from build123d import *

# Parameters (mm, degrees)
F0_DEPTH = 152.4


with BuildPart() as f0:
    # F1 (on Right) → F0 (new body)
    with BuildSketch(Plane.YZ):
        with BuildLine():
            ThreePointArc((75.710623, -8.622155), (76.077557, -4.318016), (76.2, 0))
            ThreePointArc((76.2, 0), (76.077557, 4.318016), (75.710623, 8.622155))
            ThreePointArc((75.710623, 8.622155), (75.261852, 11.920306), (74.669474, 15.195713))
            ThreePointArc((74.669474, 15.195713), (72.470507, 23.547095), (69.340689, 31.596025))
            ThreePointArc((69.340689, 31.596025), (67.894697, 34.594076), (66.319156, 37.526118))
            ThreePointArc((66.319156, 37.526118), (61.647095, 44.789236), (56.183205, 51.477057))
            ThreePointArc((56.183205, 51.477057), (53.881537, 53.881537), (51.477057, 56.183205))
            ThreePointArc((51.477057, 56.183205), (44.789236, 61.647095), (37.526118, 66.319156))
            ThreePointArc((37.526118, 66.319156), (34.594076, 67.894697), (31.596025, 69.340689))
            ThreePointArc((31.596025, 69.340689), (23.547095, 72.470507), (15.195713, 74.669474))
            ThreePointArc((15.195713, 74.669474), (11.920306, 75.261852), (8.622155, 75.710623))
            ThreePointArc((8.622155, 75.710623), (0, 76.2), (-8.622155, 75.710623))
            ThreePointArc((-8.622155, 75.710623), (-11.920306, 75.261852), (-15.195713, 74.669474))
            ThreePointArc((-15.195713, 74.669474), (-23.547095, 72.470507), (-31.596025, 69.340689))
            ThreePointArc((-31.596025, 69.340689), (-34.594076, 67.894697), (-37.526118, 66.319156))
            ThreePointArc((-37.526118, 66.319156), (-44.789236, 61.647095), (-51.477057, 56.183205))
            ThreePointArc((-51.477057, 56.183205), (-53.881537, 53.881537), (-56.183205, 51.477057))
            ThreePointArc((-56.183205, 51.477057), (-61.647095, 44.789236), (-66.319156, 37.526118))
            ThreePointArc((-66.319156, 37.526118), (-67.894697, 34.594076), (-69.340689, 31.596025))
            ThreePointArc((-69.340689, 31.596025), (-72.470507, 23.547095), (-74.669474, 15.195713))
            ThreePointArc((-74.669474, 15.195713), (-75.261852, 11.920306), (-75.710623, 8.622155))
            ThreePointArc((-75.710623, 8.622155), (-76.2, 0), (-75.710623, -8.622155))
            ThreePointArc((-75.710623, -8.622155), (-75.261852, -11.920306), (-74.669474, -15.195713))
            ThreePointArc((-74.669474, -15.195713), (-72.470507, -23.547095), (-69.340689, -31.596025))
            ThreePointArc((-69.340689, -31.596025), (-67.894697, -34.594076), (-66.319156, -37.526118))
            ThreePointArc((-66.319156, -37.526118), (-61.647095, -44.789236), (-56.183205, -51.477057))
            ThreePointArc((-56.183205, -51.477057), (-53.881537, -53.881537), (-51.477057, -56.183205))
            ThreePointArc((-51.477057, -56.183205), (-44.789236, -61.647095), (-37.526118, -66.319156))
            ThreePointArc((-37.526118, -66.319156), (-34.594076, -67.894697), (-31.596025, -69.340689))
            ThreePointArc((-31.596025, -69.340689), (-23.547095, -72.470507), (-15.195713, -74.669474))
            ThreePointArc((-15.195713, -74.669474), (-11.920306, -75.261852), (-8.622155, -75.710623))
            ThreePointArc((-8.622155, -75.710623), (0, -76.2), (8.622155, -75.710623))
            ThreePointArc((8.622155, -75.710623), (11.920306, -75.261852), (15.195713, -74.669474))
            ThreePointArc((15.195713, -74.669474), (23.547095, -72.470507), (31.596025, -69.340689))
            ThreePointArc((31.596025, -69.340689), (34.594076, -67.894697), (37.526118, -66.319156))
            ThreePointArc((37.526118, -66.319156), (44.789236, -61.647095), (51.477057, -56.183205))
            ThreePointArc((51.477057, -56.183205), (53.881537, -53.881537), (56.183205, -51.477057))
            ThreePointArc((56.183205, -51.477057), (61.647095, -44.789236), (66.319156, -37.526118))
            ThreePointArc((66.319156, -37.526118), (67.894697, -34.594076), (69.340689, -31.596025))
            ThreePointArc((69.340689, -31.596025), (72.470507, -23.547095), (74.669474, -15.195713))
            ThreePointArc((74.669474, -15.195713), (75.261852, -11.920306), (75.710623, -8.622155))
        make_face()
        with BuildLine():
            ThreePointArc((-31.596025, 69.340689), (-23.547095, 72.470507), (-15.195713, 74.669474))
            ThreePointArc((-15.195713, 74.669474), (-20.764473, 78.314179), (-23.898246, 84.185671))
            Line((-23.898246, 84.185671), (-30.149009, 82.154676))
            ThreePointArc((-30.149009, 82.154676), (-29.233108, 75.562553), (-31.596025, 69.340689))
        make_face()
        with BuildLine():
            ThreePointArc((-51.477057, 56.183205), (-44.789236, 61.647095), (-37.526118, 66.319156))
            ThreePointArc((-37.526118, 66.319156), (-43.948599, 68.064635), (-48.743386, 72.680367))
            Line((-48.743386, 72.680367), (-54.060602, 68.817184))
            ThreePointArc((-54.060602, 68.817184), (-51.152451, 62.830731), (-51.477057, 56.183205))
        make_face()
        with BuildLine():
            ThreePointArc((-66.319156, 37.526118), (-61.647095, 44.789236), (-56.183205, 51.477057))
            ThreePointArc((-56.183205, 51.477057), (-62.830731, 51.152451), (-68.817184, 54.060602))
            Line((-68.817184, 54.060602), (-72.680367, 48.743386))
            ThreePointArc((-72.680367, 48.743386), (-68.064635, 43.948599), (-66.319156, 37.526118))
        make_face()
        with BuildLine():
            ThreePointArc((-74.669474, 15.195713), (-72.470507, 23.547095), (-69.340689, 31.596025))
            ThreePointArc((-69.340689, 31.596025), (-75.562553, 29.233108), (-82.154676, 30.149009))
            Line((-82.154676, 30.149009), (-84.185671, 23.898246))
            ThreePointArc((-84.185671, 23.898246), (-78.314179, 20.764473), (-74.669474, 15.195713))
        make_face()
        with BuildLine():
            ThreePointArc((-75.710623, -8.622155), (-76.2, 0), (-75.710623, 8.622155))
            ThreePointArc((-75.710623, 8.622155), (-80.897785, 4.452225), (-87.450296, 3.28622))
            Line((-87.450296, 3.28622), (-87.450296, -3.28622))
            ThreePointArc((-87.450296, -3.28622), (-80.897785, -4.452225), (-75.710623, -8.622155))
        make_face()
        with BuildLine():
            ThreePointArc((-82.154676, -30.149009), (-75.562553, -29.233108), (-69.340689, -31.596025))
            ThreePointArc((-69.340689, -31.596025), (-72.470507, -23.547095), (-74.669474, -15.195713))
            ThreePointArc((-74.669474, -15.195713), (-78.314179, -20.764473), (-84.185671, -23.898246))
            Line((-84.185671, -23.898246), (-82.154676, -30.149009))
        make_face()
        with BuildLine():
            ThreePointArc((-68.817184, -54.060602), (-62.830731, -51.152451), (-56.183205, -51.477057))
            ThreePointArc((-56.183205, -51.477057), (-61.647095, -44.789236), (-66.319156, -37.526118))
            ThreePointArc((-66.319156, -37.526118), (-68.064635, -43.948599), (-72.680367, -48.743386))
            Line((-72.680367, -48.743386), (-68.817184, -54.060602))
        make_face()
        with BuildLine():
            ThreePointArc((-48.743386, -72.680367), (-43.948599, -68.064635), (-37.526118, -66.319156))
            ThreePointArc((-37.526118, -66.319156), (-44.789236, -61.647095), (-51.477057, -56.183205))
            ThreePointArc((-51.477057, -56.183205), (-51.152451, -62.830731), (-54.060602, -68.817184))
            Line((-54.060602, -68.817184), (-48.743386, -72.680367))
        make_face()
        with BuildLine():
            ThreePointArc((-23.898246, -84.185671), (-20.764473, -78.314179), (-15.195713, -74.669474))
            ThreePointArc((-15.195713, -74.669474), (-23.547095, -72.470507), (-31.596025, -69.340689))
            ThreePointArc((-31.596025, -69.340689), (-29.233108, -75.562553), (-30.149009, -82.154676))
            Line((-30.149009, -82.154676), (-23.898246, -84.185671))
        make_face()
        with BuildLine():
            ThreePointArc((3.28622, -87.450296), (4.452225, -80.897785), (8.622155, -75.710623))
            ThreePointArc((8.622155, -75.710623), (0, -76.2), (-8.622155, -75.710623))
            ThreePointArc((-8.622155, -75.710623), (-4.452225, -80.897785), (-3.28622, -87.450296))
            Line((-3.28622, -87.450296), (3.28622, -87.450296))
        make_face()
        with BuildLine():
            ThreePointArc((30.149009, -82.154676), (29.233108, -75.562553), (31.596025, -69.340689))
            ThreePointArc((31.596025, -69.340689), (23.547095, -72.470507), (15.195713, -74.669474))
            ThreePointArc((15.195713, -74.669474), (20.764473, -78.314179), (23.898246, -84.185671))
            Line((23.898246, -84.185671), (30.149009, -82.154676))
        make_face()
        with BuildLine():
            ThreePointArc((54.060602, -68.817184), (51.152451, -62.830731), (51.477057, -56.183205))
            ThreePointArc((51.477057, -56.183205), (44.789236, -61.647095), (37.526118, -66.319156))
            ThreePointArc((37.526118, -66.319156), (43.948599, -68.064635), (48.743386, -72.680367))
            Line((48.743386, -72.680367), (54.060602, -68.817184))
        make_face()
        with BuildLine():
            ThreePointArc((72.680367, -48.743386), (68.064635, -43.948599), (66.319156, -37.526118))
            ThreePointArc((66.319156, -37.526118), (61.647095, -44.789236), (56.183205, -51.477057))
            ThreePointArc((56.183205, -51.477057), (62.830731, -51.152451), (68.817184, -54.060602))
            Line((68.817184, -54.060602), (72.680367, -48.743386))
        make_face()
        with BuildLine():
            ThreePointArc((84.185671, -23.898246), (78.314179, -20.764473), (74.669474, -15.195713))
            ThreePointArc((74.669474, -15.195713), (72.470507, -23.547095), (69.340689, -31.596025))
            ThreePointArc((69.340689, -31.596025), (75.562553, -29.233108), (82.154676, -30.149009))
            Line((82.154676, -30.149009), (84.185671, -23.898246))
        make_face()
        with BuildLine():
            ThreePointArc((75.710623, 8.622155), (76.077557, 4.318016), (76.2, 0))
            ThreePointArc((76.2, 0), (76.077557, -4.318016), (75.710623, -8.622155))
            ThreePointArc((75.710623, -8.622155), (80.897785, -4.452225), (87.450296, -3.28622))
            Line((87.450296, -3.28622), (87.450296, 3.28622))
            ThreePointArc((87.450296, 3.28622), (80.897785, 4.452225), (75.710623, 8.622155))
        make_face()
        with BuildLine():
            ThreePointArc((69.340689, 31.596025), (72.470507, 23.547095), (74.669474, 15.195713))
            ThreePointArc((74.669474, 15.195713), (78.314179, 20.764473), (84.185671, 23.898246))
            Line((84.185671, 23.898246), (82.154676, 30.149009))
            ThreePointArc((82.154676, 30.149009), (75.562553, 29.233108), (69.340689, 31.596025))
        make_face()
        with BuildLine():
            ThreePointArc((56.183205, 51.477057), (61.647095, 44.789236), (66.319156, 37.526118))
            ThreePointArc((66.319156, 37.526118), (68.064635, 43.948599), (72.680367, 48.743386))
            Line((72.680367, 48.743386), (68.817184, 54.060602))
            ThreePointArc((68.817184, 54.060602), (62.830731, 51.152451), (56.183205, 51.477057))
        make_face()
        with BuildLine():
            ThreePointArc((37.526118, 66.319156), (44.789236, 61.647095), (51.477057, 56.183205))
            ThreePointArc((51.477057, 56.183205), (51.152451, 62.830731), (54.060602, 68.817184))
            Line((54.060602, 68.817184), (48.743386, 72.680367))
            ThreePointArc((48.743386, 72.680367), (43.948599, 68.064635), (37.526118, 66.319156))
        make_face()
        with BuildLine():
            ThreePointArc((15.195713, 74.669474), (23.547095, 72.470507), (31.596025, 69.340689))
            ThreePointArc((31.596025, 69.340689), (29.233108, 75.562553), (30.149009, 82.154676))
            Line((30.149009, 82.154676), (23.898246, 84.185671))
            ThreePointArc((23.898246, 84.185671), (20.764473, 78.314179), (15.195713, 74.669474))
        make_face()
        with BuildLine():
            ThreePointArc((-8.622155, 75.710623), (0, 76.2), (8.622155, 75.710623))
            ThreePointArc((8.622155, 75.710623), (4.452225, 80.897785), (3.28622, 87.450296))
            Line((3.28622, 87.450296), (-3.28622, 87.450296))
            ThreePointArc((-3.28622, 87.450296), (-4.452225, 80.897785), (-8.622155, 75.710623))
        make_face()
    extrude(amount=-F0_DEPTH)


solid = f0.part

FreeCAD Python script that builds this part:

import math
import FreeCAD as App
import Part
import Sketcher
Q = App.Units.Quantity

doc = App.newDocument("Part")
body = doc.addObject("PartDesign::Body", "Body")

sketch1 = doc.addObject("Sketcher::SketchObject", "Sketch")
body.addObject(sketch1)
sketch1.AttachmentSupport = (doc.YZ_Plane, [""])
sketch1.MapMode = "FlatFace"
sketch1.addGeometry([
    Part.ArcOfCircle(Part.Circle(App.Vector(0.000306, 0.000052, 0), App.Vector(0, 0, 1), 76.19969), math.radians(6.497013), math.radians(11.502982)),
    Part.ArcOfCircle(Part.Circle(App.Vector(87.373492, 10.858138, 0), App.Vector(0, 0, 1), 13.424106), math.radians(103.737258), math.radians(161.148384)),
    Part.LineSegment(App.Vector(84.185671, 23.898246, 0), App.Vector(82.154676, 30.149009, 0)),
    Part.ArcOfCircle(Part.Circle(App.Vector(77.068893, 42.572436, 0), App.Vector(0, 0, 1), 13.42411), math.radians(-125.148374), math.radians(-67.737259)),
    Part.ArcOfCircle(Part.Circle(App.Vector(0.000055, 0.000031, 0), App.Vector(0, 0, 1), 76.199936), math.radians(24.497021), math.radians(29.502974)),
    Part.ArcOfCircle(Part.Circle(App.Vector(79.741782, 37.326595, 0), App.Vector(0, 0, 1), 13.424109), math.radians(121.737262), math.radians(179.14838)),
    Part.LineSegment(App.Vector(72.680367, 48.743386, 0), App.Vector(68.817184, 54.060602, 0)),
    Part.ArcOfCircle(Part.Circle(App.Vector(60.141266, 64.304393, 0), App.Vector(0, 0, 1), 13.424113), math.radians(-107.148372), math.radians(-49.737269)),
    Part.ArcOfCircle(Part.Circle(App.Vector(0.000669, 0.000669, 0), App.Vector(0, 0, 1), 76.199055), math.radians(42.496995), math.radians(47.503005)),
    Part.ArcOfCircle(Part.Circle(App.Vector(64.304393, 60.141266, 0), App.Vector(0, 0, 1), 13.424113), math.radians(139.737269), math.radians(197.148372)),
    Part.LineSegment(App.Vector(54.060602, 68.817184, 0), App.Vector(48.743386, 72.680367, 0)),
    Part.ArcOfCircle(Part.Circle(App.Vector(37.326595, 79.741782, 0), App.Vector(0, 0, 1), 13.424109), math.radians(-89.14838), math.radians(-31.737262)),
    Part.ArcOfCircle(Part.Circle(App.Vector(0.000031, 0.000055, 0), App.Vector(0, 0, 1), 76.199936), math.radians(60.497026), math.radians(65.502979)),
    Part.ArcOfCircle(Part.Circle(App.Vector(42.572436, 77.068893, 0), App.Vector(0, 0, 1), 13.42411), math.radians(157.737259), math.radians(215.148374)),
    Part.LineSegment(App.Vector(30.149009, 82.154676, 0), App.Vector(23.898246, 84.185671, 0)),
    Part.ArcOfCircle(Part.Circle(App.Vector(10.858138, 87.373492, 0), App.Vector(0, 0, 1), 13.424106), math.radians(-71.148384), math.radians(-13.737258)),
    Part.ArcOfCircle(Part.Circle(App.Vector(0.000052, 0.000306, 0), App.Vector(0, 0, 1), 76.19969), math.radians(78.497018), math.radians(83.502987)),
    Part.ArcOfCircle(Part.Circle(App.Vector(16.673193, 86.452479, 0), App.Vector(0, 0, 1), 13.424108), math.radians(175.73726), math.radians(233.148384)),
    Part.LineSegment(App.Vector(3.28622, 87.450296, 0), App.Vector(-3.28622, 87.450296, 0)),
    Part.ArcOfCircle(Part.Circle(App.Vector(-16.673193, 86.452479, 0), App.Vector(0, 0, 1), 13.424108), math.radians(-53.148384), math.radians(4.26274)),
    Part.ArcOfCircle(Part.Circle(App.Vector(-0.000052, 0.000306, 0), App.Vector(0, 0, 1), 76.19969), math.radians(96.497013), math.radians(101.502982)),
    Part.ArcOfCircle(Part.Circle(App.Vector(-10.858138, 87.373492, 0), App.Vector(0, 0, 1), 13.424106), math.radians(-166.262742), math.radians(-108.851616)),
    Part.LineSegment(App.Vector(-23.898246, 84.185671, 0), App.Vector(-30.149009, 82.154676, 0)),
    Part.ArcOfCircle(Part.Circle(App.Vector(-42.572436, 77.068893, 0), App.Vector(0, 0, 1), 13.42411), math.radians(-35.148374), math.radians(22.262741)),
    Part.ArcOfCircle(Part.Circle(App.Vector(-0.000031, 0.000055, 0), App.Vector(0, 0, 1), 76.199936), math.radians(114.497021), math.radians(119.502974)),
    Part.ArcOfCircle(Part.Circle(App.Vector(-37.326595, 79.741782, 0), App.Vector(0, 0, 1), 13.424109), math.radians(-148.262738), math.radians(-90.85162)),
    Part.LineSegment(App.Vector(-48.743386, 72.680367, 0), App.Vector(-54.060602, 68.817184, 0)),
    Part.ArcOfCircle(Part.Circle(App.Vector(-64.304393, 60.141266, 0), App.Vector(0, 0, 1), 13.424113), math.radians(-17.148372), math.radians(40.262731)),
    Part.ArcOfCircle(Part.Circle(App.Vector(-0.000669, 0.000669, 0), App.Vector(0, 0, 1), 76.199055), math.radians(132.496995), math.radians(137.503005)),
    Part.ArcOfCircle(Part.Circle(App.Vector(-60.141266, 64.304393, 0), App.Vector(0, 0, 1), 13.424113), math.radians(-130.262731), math.radians(-72.851628)),
    Part.LineSegment(App.Vector(-68.817184, 54.060602, 0), App.Vector(-72.680367, 48.743386, 0)),
    Part.ArcOfCircle(Part.Circle(App.Vector(-79.741782, 37.326595, 0), App.Vector(0, 0, 1), 13.424109), math.radians(0.85162), math.radians(58.262738)),
    Part.ArcOfCircle(Part.Circle(App.Vector(-0.000055, 0.000031, 0), App.Vector(0, 0, 1), 76.199936), math.radians(150.497026), math.radians(155.502979)),
    Part.ArcOfCircle(Part.Circle(App.Vector(-77.068893, 42.572436, 0), App.Vector(0, 0, 1), 13.42411), math.radians(-112.262741), math.radians(-54.851626)),
    Part.LineSegment(App.Vector(-82.154676, 30.149009, 0), App.Vector(-84.185671, 23.898246, 0)),
    Part.ArcOfCircle(Part.Circle(App.Vector(-87.373492, 10.858138, 0), App.Vector(0, 0, 1), 13.424106), math.radians(18.851616), math.radians(76.262742)),
    Part.ArcOfCircle(Part.Circle(App.Vector(-0.000306, 0.000052, 0), App.Vector(0, 0, 1), 76.19969), math.radians(168.497018), math.radians(173.502987)),
    Part.ArcOfCircle(Part.Circle(App.Vector(-86.452479, 16.673193, 0), App.Vector(0, 0, 1), 13.424108), math.radians(-94.26274), math.radians(-36.851616)),
    Part.LineSegment(App.Vector(-87.450296, 3.28622, 0), App.Vector(-87.450296, -3.28622, 0)),
    Part.ArcOfCircle(Part.Circle(App.Vector(-86.452479, -16.673193, 0), App.Vector(0, 0, 1), 13.424108), math.radians(36.851616), math.radians(94.26274)),
    Part.ArcOfCircle(Part.Circle(App.Vector(-0.000306, -0.000052, 0), App.Vector(0, 0, 1), 76.19969), math.radians(-173.502987), math.radians(-168.497018)),
    Part.ArcOfCircle(Part.Circle(App.Vector(-87.373492, -10.858138, 0), App.Vector(0, 0, 1), 13.424106), math.radians(-76.262742), math.radians(-18.851616)),
    Part.LineSegment(App.Vector(-84.185671, -23.898246, 0), App.Vector(-82.154676, -30.149009, 0)),
    Part.ArcOfCircle(Part.Circle(App.Vector(-77.068893, -42.572436, 0), App.Vector(0, 0, 1), 13.42411), math.radians(54.851626), math.radians(112.262741)),
    Part.ArcOfCircle(Part.Circle(App.Vector(-0.000055, -0.000031, 0), App.Vector(0, 0, 1), 76.199936), math.radians(-155.502979), math.radians(-150.497026)),
    Part.ArcOfCircle(Part.Circle(App.Vector(-79.741782, -37.326595, 0), App.Vector(0, 0, 1), 13.424109), math.radians(-58.262738), math.radians(-0.85162)),
    Part.LineSegment(App.Vector(-72.680367, -48.743386, 0), App.Vector(-68.817184, -54.060602, 0)),
    Part.ArcOfCircle(Part.Circle(App.Vector(-60.141266, -64.304393, 0), App.Vector(0, 0, 1), 13.424113), math.radians(72.851628), math.radians(130.262731)),
    Part.ArcOfCircle(Part.Circle(App.Vector(-0.000669, -0.000669, 0), App.Vector(0, 0, 1), 76.199055), math.radians(-137.503005), math.radians(-132.496995)),
    Part.ArcOfCircle(Part.Circle(App.Vector(-64.304393, -60.141266, 0), App.Vector(0, 0, 1), 13.424113), math.radians(-40.262731), math.radians(17.148372)),
    Part.LineSegment(App.Vector(-54.060602, -68.817184, 0), App.Vector(-48.743386, -72.680367, 0)),
    Part.ArcOfCircle(Part.Circle(App.Vector(-37.326595, -79.741782, 0), App.Vector(0, 0, 1), 13.424109), math.radians(90.85162), math.radians(148.262738)),
    Part.ArcOfCircle(Part.Circle(App.Vector(-0.000031, -0.000055, 0), App.Vector(0, 0, 1), 76.199936), math.radians(-119.502974), math.radians(-114.497021)),
    Part.ArcOfCircle(Part.Circle(App.Vector(-42.572436, -77.068893, 0), App.Vector(0, 0, 1), 13.42411), math.radians(-22.262741), math.radians(35.148374)),
    Part.LineSegment(App.Vector(-30.149009, -82.154676, 0), App.Vector(-23.898246, -84.185671, 0)),
    Part.ArcOfCircle(Part.Circle(App.Vector(-10.858138, -87.373492, 0), App.Vector(0, 0, 1), 13.424106), math.radians(108.851616), math.radians(166.262742)),
    Part.ArcOfCircle(Part.Circle(App.Vector(-0.000052, -0.000306, 0), App.Vector(0, 0, 1), 76.19969), math.radians(-101.502982), math.radians(-96.497013)),
    Part.ArcOfCircle(Part.Circle(App.Vector(-16.673193, -86.452479, 0), App.Vector(0, 0, 1), 13.424108), math.radians(-4.26274), math.radians(53.148384)),
    Part.LineSegment(App.Vector(-3.28622, -87.450296, 0), App.Vector(3.28622, -87.450296, 0)),
    Part.ArcOfCircle(Part.Circle(App.Vector(16.673193, -86.452479, 0), App.Vector(0, 0, 1), 13.424108), math.radians(126.851616), math.radians(184.26274)),
    Part.ArcOfCircle(Part.Circle(App.Vector(0.000052, -0.000306, 0), App.Vector(0, 0, 1), 76.19969), math.radians(-83.502987), math.radians(-78.497018)),
    Part.ArcOfCircle(Part.Circle(App.Vector(10.858138, -87.373492, 0), App.Vector(0, 0, 1), 13.424106), math.radians(13.737258), math.radians(71.148384)),
    Part.LineSegment(App.Vector(23.898246, -84.185671, 0), App.Vector(30.149009, -82.154676, 0)),
    Part.ArcOfCircle(Part.Circle(App.Vector(42.572436, -77.068893, 0), App.Vector(0, 0, 1), 13.42411), math.radians(144.851626), math.radians(202.262741)),
    Part.ArcOfCircle(Part.Circle(App.Vector(0.000031, -0.000055, 0), App.Vector(0, 0, 1), 76.199936), math.radians(-65.502979), math.radians(-60.497026)),
    Part.ArcOfCircle(Part.Circle(App.Vector(37.326595, -79.741782, 0), App.Vector(0, 0, 1), 13.424109), math.radians(31.737262), math.radians(89.14838)),
    Part.LineSegment(App.Vector(48.743386, -72.680367, 0), App.Vector(54.060602, -68.817184, 0)),
    Part.ArcOfCircle(Part.Circle(App.Vector(64.304393, -60.141266, 0), App.Vector(0, 0, 1), 13.424113), math.radians(162.851628), math.radians(220.262731)),
    Part.ArcOfCircle(Part.Circle(App.Vector(0.000669, -0.000669, 0), App.Vector(0, 0, 1), 76.199055), math.radians(-47.503005), math.radians(-42.496995)),
    Part.ArcOfCircle(Part.Circle(App.Vector(60.141266, -64.304393, 0), App.Vector(0, 0, 1), 13.424113), math.radians(49.737269), math.radians(107.148372)),
    Part.LineSegment(App.Vector(68.817184, -54.060602, 0), App.Vector(72.680367, -48.743386, 0)),
    Part.ArcOfCircle(Part.Circle(App.Vector(79.741782, -37.326595, 0), App.Vector(0, 0, 1), 13.424109), math.radians(-179.14838), math.radians(-121.737262)),
    Part.ArcOfCircle(Part.Circle(App.Vector(0.000055, -0.000031, 0), App.Vector(0, 0, 1), 76.199936), math.radians(-29.502974), math.radians(-24.497021)),
    Part.ArcOfCircle(Part.Circle(App.Vector(77.068893, -42.572436, 0), App.Vector(0, 0, 1), 13.42411), math.radians(67.737259), math.radians(125.148374)),
    Part.LineSegment(App.Vector(82.154676, -30.149009, 0), App.Vector(84.185671, -23.898246, 0)),
    Part.ArcOfCircle(Part.Circle(App.Vector(87.373492, -10.858138, 0), App.Vector(0, 0, 1), 13.424106), math.radians(-161.148384), math.radians(-103.737258)),
    Part.ArcOfCircle(Part.Circle(App.Vector(0.000306, -0.000052, 0), App.Vector(0, 0, 1), 76.19969), math.radians(-11.502982), math.radians(-6.497013)),
    Part.ArcOfCircle(Part.Circle(App.Vector(86.452479, -16.673193, 0), App.Vector(0, 0, 1), 13.424108), math.radians(85.73726), math.radians(143.148384)),
    Part.LineSegment(App.Vector(87.450296, -3.28622, 0), App.Vector(87.450296, 3.28622, 0)),
    Part.ArcOfCircle(Part.Circle(App.Vector(86.452479, 16.673193, 0), App.Vector(0, 0, 1), 13.424108), math.radians(-143.148384), math.radians(-85.73726)),
], False)
sketch1.addConstraint([
    Sketcher.Constraint("Coincident", 0, 2, 1, 2),
    Sketcher.Constraint("Coincident", 1, 1, 2, 1),
    Sketcher.Constraint("Coincident", 2, 2, 3, 2),
    Sketcher.Constraint("Coincident", 3, 1, 4, 1),
    Sketcher.Constraint("Coincident", 4, 2, 5, 2),
    Sketcher.Constraint("Coincident", 5, 1, 6, 1),
    Sketcher.Constraint("Coincident", 6, 2, 7, 2),
    Sketcher.Constraint("Coincident", 7, 1, 8, 1),
    Sketcher.Constraint("Coincident", 8, 2, 9, 2),
    Sketcher.Constraint("Coincident", 9, 1, 10, 1),
    Sketcher.Constraint("Coincident", 10, 2, 11, 2),
    Sketcher.Constraint("Coincident", 11, 1, 12, 1),
    Sketcher.Constraint("Coincident", 12, 2, 13, 2),
    Sketcher.Constraint("Coincident", 13, 1, 14, 1),
    Sketcher.Constraint("Coincident", 14, 2, 15, 2),
    Sketcher.Constraint("Coincident", 15, 1, 16, 1),
    Sketcher.Constraint("Coincident", 16, 2, 17, 2),
    Sketcher.Constraint("Coincident", 17, 1, 18, 1),
    Sketcher.Constraint("Coincident", 18, 2, 19, 2),
    Sketcher.Constraint("Coincident", 19, 1, 20, 1),
    Sketcher.Constraint("Coincident", 20, 2, 21, 2),
    Sketcher.Constraint("Coincident", 21, 1, 22, 1),
    Sketcher.Constraint("Coincident", 22, 2, 23, 2),
    Sketcher.Constraint("Coincident", 23, 1, 24, 1),
    Sketcher.Constraint("Coincident", 24, 2, 25, 2),
    Sketcher.Constraint("Coincident", 25, 1, 26, 1),
    Sketcher.Constraint("Coincident", 26, 2, 27, 2),
    Sketcher.Constraint("Coincident", 27, 1, 28, 1),
    Sketcher.Constraint("Coincident", 28, 2, 29, 2),
    Sketcher.Constraint("Coincident", 29, 1, 30, 1),
    Sketcher.Constraint("Coincident", 30, 2, 31, 2),
    Sketcher.Constraint("Coincident", 31, 1, 32, 1),
    Sketcher.Constraint("Coincident", 32, 2, 33, 2),
    Sketcher.Constraint("Coincident", 33, 1, 34, 1),
    Sketcher.Constraint("Coincident", 34, 2, 35, 2),
    Sketcher.Constraint("Coincident", 35, 1, 36, 1),
    Sketcher.Constraint("Coincident", 36, 2, 37, 2),
    Sketcher.Constraint("Coincident", 37, 1, 38, 1),
    Sketcher.Constraint("Coincident", 38, 2, 39, 2),
    Sketcher.Constraint("Coincident", 39, 1, 40, 1),
    Sketcher.Constraint("Coincident", 40, 2, 41, 2),
    Sketcher.Constraint("Coincident", 41, 1, 42, 1),
    Sketcher.Constraint("Coincident", 42, 2, 43, 2),
    Sketcher.Constraint("Coincident", 43, 1, 44, 1),
    Sketcher.Constraint("Coincident", 44, 2, 45, 2),
    Sketcher.Constraint("Coincident", 45, 1, 46, 1),
    Sketcher.Constraint("Coincident", 46, 2, 47, 2),
    Sketcher.Constraint("Coincident", 47, 1, 48, 1),
    Sketcher.Constraint("Coincident", 48, 2, 49, 2),
    Sketcher.Constraint("Coincident", 49, 1, 50, 1),
    Sketcher.Constraint("Coincident", 50, 2, 51, 2),
    Sketcher.Constraint("Coincident", 51, 1, 52, 1),
    Sketcher.Constraint("Coincident", 52, 2, 53, 2),
    Sketcher.Constraint("Coincident", 53, 1, 54, 1),
    Sketcher.Constraint("Coincident", 54, 2, 55, 2),
    Sketcher.Constraint("Coincident", 55, 1, 56, 1),
    Sketcher.Constraint("Coincident", 56, 2, 57, 2),
    Sketcher.Constraint("Coincident", 57, 1, 58, 1),
    Sketcher.Constraint("Coincident", 58, 2, 59, 2),
    Sketcher.Constraint("Coincident", 59, 1, 60, 1),
    Sketcher.Constraint("Coincident", 60, 2, 61, 2),
    Sketcher.Constraint("Coincident", 61, 1, 62, 1),
    Sketcher.Constraint("Coincident", 62, 2, 63, 2),
    Sketcher.Constraint("Coincident", 63, 1, 64, 1),
    Sketcher.Constraint("Coincident", 64, 2, 65, 2),
    Sketcher.Constraint("Coincident", 65, 1, 66, 1),
    Sketcher.Constraint("Coincident", 66, 2, 67, 2),
    Sketcher.Constraint("Coincident", 67, 1, 68, 1),
    Sketcher.Constraint("Coincident", 68, 2, 69, 2),
    Sketcher.Constraint("Coincident", 69, 1, 70, 1),
    Sketcher.Constraint("Coincident", 70, 2, 71, 2),
    Sketcher.Constraint("Coincident", 71, 1, 72, 1),
    Sketcher.Constraint("Coincident", 72, 2, 73, 2),
    Sketcher.Constraint("Coincident", 73, 1, 74, 1),
    Sketcher.Constraint("Coincident", 74, 2, 75, 2),
    Sketcher.Constraint("Coincident", 75, 1, 76, 1),
    Sketcher.Constraint("Coincident", 76, 2, 77, 2),
    Sketcher.Constraint("Coincident", 77, 1, 78, 1),
    Sketcher.Constraint("Coincident", 78, 2, 79, 2),
    Sketcher.Constraint("Coincident", 79, 1, 0, 1),
    Sketcher.Constraint("Horizontal", 18),
    Sketcher.Constraint("Vertical", 38),
    Sketcher.Constraint("Horizontal", 58),
    Sketcher.Constraint("Vertical", 78),
    Sketcher.Constraint("Radius", 0, Q("76.19969 mm")),
    Sketcher.Constraint("Radius", 3, Q("13.42411 mm")),
    Sketcher.Constraint("Radius", 5, Q("13.424109 mm")),
    Sketcher.Constraint("Radius", 11, Q("13.424109 mm")),
    Sketcher.Constraint("Radius", 13, Q("13.42411 mm")),
    Sketcher.Constraint("Radius", 16, Q("76.19969 mm")),
    Sketcher.Constraint("Radius", 17, Q("13.424108 mm")),
    Sketcher.Constraint("Radius", 19, Q("13.424108 mm")),
    Sketcher.Constraint("Radius", 20, Q("76.19969 mm")),
    Sketcher.Constraint("Radius", 23, Q("13.42411 mm")),
    Sketcher.Constraint("Radius", 25, Q("13.424109 mm")),
    Sketcher.Constraint("Radius", 31, Q("13.424109 mm")),
    Sketcher.Constraint("Radius", 33, Q("13.42411 mm")),
    Sketcher.Constraint("Radius", 36, Q("76.19969 mm")),
    Sketcher.Constraint("Radius", 37, Q("13.424108 mm")),
    Sketcher.Constraint("Radius", 39, Q("13.424108 mm")),
    Sketcher.Constraint("Radius", 40, Q("76.19969 mm")),
    Sketcher.Constraint("Radius", 43, Q("13.42411 mm")),
    Sketcher.Constraint("Radius", 45, Q("13.424109 mm")),
    Sketcher.Constraint("Radius", 51, Q("13.424109 mm")),
    Sketcher.Constraint("Radius", 53, Q("13.42411 mm")),
    Sketcher.Constraint("Radius", 56, Q("76.19969 mm")),
    Sketcher.Constraint("Radius", 57, Q("13.424108 mm")),
    Sketcher.Constraint("Radius", 59, Q("13.424108 mm")),
    Sketcher.Constraint("Radius", 60, Q("76.19969 mm")),
    Sketcher.Constraint("Radius", 63, Q("13.42411 mm")),
    Sketcher.Constraint("Radius", 65, Q("13.424109 mm")),
    Sketcher.Constraint("Radius", 71, Q("13.424109 mm")),
    Sketcher.Constraint("Radius", 73, Q("13.42411 mm")),
    Sketcher.Constraint("Radius", 76, Q("76.19969 mm")),
    Sketcher.Constraint("Radius", 77, Q("13.424108 mm")),
    Sketcher.Constraint("Radius", 79, Q("13.424108 mm")),
    Sketcher.Constraint("Radius", 1, Q("13.424106 mm")),
    Sketcher.Constraint("Radius", 4, Q("76.199936 mm")),
    Sketcher.Constraint("Radius", 7, Q("13.424113 mm")),
    Sketcher.Constraint("Radius", 8, Q("76.199055 mm")),
    Sketcher.Constraint("Radius", 9, Q("13.424113 mm")),
    Sketcher.Constraint("Radius", 12, Q("76.199936 mm")),
    Sketcher.Constraint("Radius", 15, Q("13.424106 mm")),
    Sketcher.Constraint("Radius", 21, Q("13.424106 mm")),
    Sketcher.Constraint("Radius", 24, Q("76.199936 mm")),
    Sketcher.Constraint("Radius", 27, Q("13.424113 mm")),
    Sketcher.Constraint("Radius", 28, Q("76.199055 mm")),
    Sketcher.Constraint("Radius", 29, Q("13.424113 mm")),
    Sketcher.Constraint("Radius", 32, Q("76.199936 mm")),
    Sketcher.Constraint("Radius", 35, Q("13.424106 mm")),
    Sketcher.Constraint("Radius", 41, Q("13.424106 mm")),
    Sketcher.Constraint("Radius", 44, Q("76.199936 mm")),
    Sketcher.Constraint("Radius", 47, Q("13.424113 mm")),
    Sketcher.Constraint("Radius", 48, Q("76.199055 mm")),
    Sketcher.Constraint("Radius", 49, Q("13.424113 mm")),
    Sketcher.Constraint("Radius", 52, Q("76.199936 mm")),
    Sketcher.Constraint("Radius", 55, Q("13.424106 mm")),
    Sketcher.Constraint("Radius", 61, Q("13.424106 mm")),
    Sketcher.Constraint("Radius", 64, Q("76.199936 mm")),
    Sketcher.Constraint("Radius", 67, Q("13.424113 mm")),
    Sketcher.Constraint("Radius", 68, Q("76.199055 mm")),
    Sketcher.Constraint("Radius", 69, Q("13.424113 mm")),
    Sketcher.Constraint("Radius", 72, Q("76.199936 mm")),
    Sketcher.Constraint("Radius", 75, Q("13.424106 mm")),
    Sketcher.Constraint("DistanceX", 18, 2, 18, 1, Q("6.57244 mm")),
    Sketcher.Constraint("DistanceX", 58, 1, 58, 2, Q("6.57244 mm")),
    Sketcher.Constraint("DistanceY", 38, 2, 38, 1, Q("6.57244 mm")),
    Sketcher.Constraint("DistanceY", 78, 1, 78, 2, Q("6.57244 mm")),
    Sketcher.Constraint("DistanceX", -1, 1, 9, 1, Q("54.060602 mm")),
    Sketcher.Constraint("DistanceY", -1, 1, 29, 1, Q("54.060602 mm")),
    Sketcher.Constraint("DistanceX", 49, 1, -1, 1, Q("54.060602 mm")),
    Sketcher.Constraint("DistanceY", 69, 1, -1, 1, Q("54.060602 mm")),
    Sketcher.Constraint("Distance", 2, Q("6.572441 mm")),
    Sketcher.Constraint("Distance", 6, Q("6.57244 mm")),
    Sketcher.Constraint("Distance", 10, Q("6.57244 mm")),
    Sketcher.Constraint("Distance", 14, Q("6.572441 mm")),
    Sketcher.Constraint("Distance", 22, Q("6.572441 mm")),
    Sketcher.Constraint("Distance", 26, Q("6.57244 mm")),
    Sketcher.Constraint("Distance", 30, Q("6.57244 mm")),
    Sketcher.Constraint("Distance", 34, Q("6.572441 mm")),
    Sketcher.Constraint("Distance", 42, Q("6.572441 mm")),
    Sketcher.Constraint("Distance", 46, Q("6.57244 mm")),
    Sketcher.Constraint("Distance", 50, Q("6.57244 mm")),
    Sketcher.Constraint("Distance", 54, Q("6.572441 mm")),
    Sketcher.Constraint("Distance", 62, Q("6.572441 mm")),
    Sketcher.Constraint("Distance", 66, Q("6.57244 mm")),
    Sketcher.Constraint("Distance", 70, Q("6.57244 mm")),
    Sketcher.Constraint("Distance", 74, Q("6.572441 mm")),
    Sketcher.Constraint("DistanceX", -1, 1, 1, 3, Q("87.373492 mm")),
    Sketcher.Constraint("DistanceX", -1, 1, 5, 3, Q("79.741782 mm")),
    Sketcher.Constraint("DistanceX", -1, 1, 8, 3, Q("0.000669 mm")),
    Sketcher.Constraint("DistanceY", -1, 1, 8, 3, Q("0.000669 mm")),
    Sketcher.Constraint("DistanceY", -1, 1, 11, 3, Q("79.741782 mm")),
    Sketcher.Constraint("DistanceY", -1, 1, 15, 3, Q("87.373492 mm")),
    Sketcher.Constraint("DistanceY", -1, 1, 17, 3, Q("86.452479 mm")),
    Sketcher.Constraint("DistanceY", -1, 1, 19, 3, Q("86.452479 mm")),
    Sketcher.Constraint("DistanceY", -1, 1, 21, 3, Q("87.373492 mm")),
    Sketcher.Constraint("DistanceY", -1, 1, 25, 3, Q("79.741782 mm")),
    Sketcher.Constraint("DistanceX", 28, 3, -1, 1, Q("0.000669 mm")),
    Sketcher.Constraint("DistanceY", -1, 1, 28, 3, Q("0.000669 mm")),
    Sketcher.Constraint("DistanceX", 31, 3, -1, 1, Q("79.741782 mm")),
    Sketcher.Constraint("DistanceX", 35, 3, -1, 1, Q("87.373492 mm")),
    Sketcher.Constraint("DistanceX", 37, 3, -1, 1, Q("86.452479 mm")),
    Sketcher.Constraint("DistanceX", 39, 3, -1, 1, Q("86.452479 mm")),
    Sketcher.Constraint("DistanceX", 41, 3, -1, 1, Q("87.373492 mm")),
    Sketcher.Constraint("DistanceX", 45, 3, -1, 1, Q("79.741782 mm")),
    Sketcher.Constraint("DistanceX", 48, 3, -1, 1, Q("0.000669 mm")),
    Sketcher.Constraint("DistanceY", 48, 3, -1, 1, Q("0.000669 mm")),
    Sketcher.Constraint("DistanceY", 51, 3, -1, 1, Q("79.741782 mm")),
    Sketcher.Constraint("DistanceY", 55, 3, -1, 1, Q("87.373492 mm")),
    Sketcher.Constraint("DistanceY", 57, 3, -1, 1, Q("86.452479 mm")),
    Sketcher.Constraint("DistanceY", 59, 3, -1, 1, Q("86.452479 mm")),
    Sketcher.Constraint("DistanceY", 61, 3, -1, 1, Q("87.373492 mm")),
    Sketcher.Constraint("DistanceY", 65, 3, -1, 1, Q("79.741782 mm")),
    Sketcher.Constraint("DistanceX", -1, 1, 68, 3, Q("0.000669 mm")),
    Sketcher.Constraint("DistanceY", 68, 3, -1, 1, Q("0.000669 mm")),
    Sketcher.Constraint("DistanceX", -1, 1, 71, 3, Q("79.741782 mm")),
    Sketcher.Constraint("DistanceX", -1, 1, 75, 3, Q("87.373492 mm")),
    Sketcher.Constraint("DistanceX", -1, 1, 77, 3, Q("86.452479 mm")),
    Sketcher.Constraint("DistanceX", -1, 1, 79, 3, Q("86.452479 mm")),
    Sketcher.Constraint("DistanceX", -1, 1, 1, 1, Q("84.185671 mm")),
    Sketcher.Constraint("DistanceY", -1, 1, 2, 2, Q("30.149009 mm")),
    Sketcher.Constraint("DistanceX", -1, 1, 3, 1, Q("69.340689 mm")),
    Sketcher.Constraint("DistanceX", -1, 1, 11, 1, Q("37.526118 mm")),
    Sketcher.Constraint("DistanceY", -1, 1, 12, 2, Q("69.340689 mm")),
    Sketcher.Constraint("DistanceX", -1, 1, 13, 1, Q("30.149009 mm")),
    Sketcher.Constraint("DistanceY", -1, 1, 14, 2, Q("84.185671 mm")),
    Sketcher.Constraint("DistanceX", -1, 1, 17, 1, Q("3.28622 mm")),
    Sketcher.Constraint("DistanceY", -1, 1, 21, 1, Q("84.185671 mm")),
    Sketcher.Constraint("DistanceX", 22, 2, -1, 1, Q("30.149009 mm")),
    Sketcher.Constraint("DistanceY", -1, 1, 23, 1, Q("69.340689 mm")),
    Sketcher.Constraint("DistanceY", -1, 1, 31, 1, Q("37.526118 mm")),
    Sketcher.Constraint("DistanceX", 32, 2, -1, 1, Q("69.340689 mm")),
    Sketcher.Constraint("DistanceY", -1, 1, 33, 1, Q("30.149009 mm")),
    Sketcher.Constraint("DistanceX", 34, 2, -1, 1, Q("84.185671 mm")),
    Sketcher.Constraint("DistanceY", -1, 1, 37, 1, Q("3.28622 mm")),
    Sketcher.Constraint("DistanceX", 41, 1, -1, 1, Q("84.185671 mm")),
    Sketcher.Constraint("DistanceY", 42, 2, -1, 1, Q("30.149009 mm")),
    Sketcher.Constraint("DistanceX", 43, 1, -1, 1, Q("69.340689 mm")),
    Sketcher.Constraint("DistanceX", 51, 1, -1, 1, Q("37.526118 mm")),
    Sketcher.Constraint("DistanceY", 52, 2, -1, 1, Q("69.340689 mm")),
    Sketcher.Constraint("DistanceX", 53, 1, -1, 1, Q("30.149009 mm")),
    Sketcher.Constraint("DistanceY", 54, 2, -1, 1, Q("84.185671 mm")),
    Sketcher.Constraint("DistanceX", 57, 1, -1, 1, Q("3.28622 mm")),
    Sketcher.Constraint("DistanceY", 61, 1, -1, 1, Q("84.185671 mm")),
    Sketcher.Constraint("DistanceX", -1, 1, 62, 2, Q("30.149009 mm")),
    Sketcher.Constraint("DistanceY", 63, 1, -1, 1, Q("69.340689 mm")),
    Sketcher.Constraint("DistanceY", 71, 1, -1, 1, Q("37.526118 mm")),
    Sketcher.Constraint("DistanceX", -1, 1, 72, 2, Q("69.340689 mm")),
    Sketcher.Constraint("DistanceY", 73, 1, -1, 1, Q("30.149009 mm")),
    Sketcher.Constraint("DistanceX", -1, 1, 74, 2, Q("84.185671 mm")),
    Sketcher.Constraint("DistanceY", 77, 1, -1, 1, Q("3.28622 mm")),
    Sketcher.Constraint("DistanceX", -1, 1, 0, 3, Q("0.000306 mm")),
    Sketcher.Constraint("DistanceY", -1, 1, 1, 3, Q("10.858138 mm")),
    Sketcher.Constraint("DistanceX", -1, 1, 3, 3, Q("77.068893 mm")),
    Sketcher.Constraint("DistanceY", -1, 1, 5, 3, Q("37.326595 mm")),
    Sketcher.Constraint("DistanceX", -1, 1, 7, 3, Q("60.141266 mm")),
    Sketcher.Constraint("DistanceY", -1, 1, 7, 3, Q("64.304393 mm")),
    Sketcher.Constraint("DistanceX", -1, 1, 9, 3, Q("64.304393 mm")),
    Sketcher.Constraint("DistanceY", -1, 1, 9, 3, Q("60.141266 mm")),
    Sketcher.Constraint("DistanceX", -1, 1, 11, 3, Q("37.326595 mm")),
    Sketcher.Constraint("DistanceX", -1, 1, 13, 3, Q("42.572436 mm")),
    Sketcher.Constraint("DistanceY", -1, 1, 13, 3, Q("77.068893 mm")),
    Sketcher.Constraint("DistanceY", -1, 1, 16, 3, Q("0.000306 mm")),
    Sketcher.Constraint("DistanceX", -1, 1, 17, 3, Q("16.673193 mm")),
    Sketcher.Constraint("DistanceY", -1, 1, 20, 3, Q("0.000306 mm")),
    Sketcher.Constraint("DistanceX", 21, 3, -1, 1, Q("10.858138 mm")),
    Sketcher.Constraint("DistanceX", 23, 3, -1, 1, Q("42.572436 mm")),
    Sketcher.Constraint("DistanceX", 25, 3, -1, 1, Q("37.326595 mm")),
    Sketcher.Constraint("DistanceX", 27, 3, -1, 1, Q("64.304393 mm")),
    Sketcher.Constraint("DistanceY", -1, 1, 27, 3, Q("60.141266 mm")),
    Sketcher.Constraint("DistanceX", 29, 3, -1, 1, Q("60.141266 mm")),
    Sketcher.Constraint("DistanceY", -1, 1, 29, 3, Q("64.304393 mm")),
    Sketcher.Constraint("DistanceY", -1, 1, 31, 3, Q("37.326595 mm")),
    Sketcher.Constraint("DistanceX", 33, 3, -1, 1, Q("77.068893 mm")),
    Sketcher.Constraint("DistanceY", -1, 1, 33, 3, Q("42.572436 mm")),
    Sketcher.Constraint("DistanceX", 36, 3, -1, 1, Q("0.000306 mm")),
    Sketcher.Constraint("DistanceY", -1, 1, 37, 3, Q("16.673193 mm")),
    Sketcher.Constraint("DistanceX", 40, 3, -1, 1, Q("0.000306 mm")),
    Sketcher.Constraint("DistanceY", 41, 3, -1, 1, Q("10.858138 mm")),
    Sketcher.Constraint("DistanceX", 43, 3, -1, 1, Q("77.068893 mm")),
    Sketcher.Constraint("DistanceY", 45, 3, -1, 1, Q("37.326595 mm")),
    Sketcher.Constraint("DistanceX", 47, 3, -1, 1, Q("60.141266 mm")),
    Sketcher.Constraint("DistanceY", 47, 3, -1, 1, Q("64.304393 mm")),
    Sketcher.Constraint("DistanceX", 49, 3, -1, 1, Q("64.304393 mm")),
    Sketcher.Constraint("DistanceY", 49, 3, -1, 1, Q("60.141266 mm")),
    Sketcher.Constraint("DistanceX", 51, 3, -1, 1, Q("37.326595 mm")),
    Sketcher.Constraint("DistanceX", 53, 3, -1, 1, Q("42.572436 mm")),
    Sketcher.Constraint("DistanceY", 53, 3, -1, 1, Q("77.068893 mm")),
    Sketcher.Constraint("DistanceY", 56, 3, -1, 1, Q("0.000306 mm")),
    Sketcher.Constraint("DistanceX", 57, 3, -1, 1, Q("16.673193 mm")),
    Sketcher.Constraint("DistanceY", 60, 3, -1, 1, Q("0.000306 mm")),
    Sketcher.Constraint("DistanceX", -1, 1, 61, 3, Q("10.858138 mm")),
    Sketcher.Constraint("DistanceX", -1, 1, 63, 3, Q("42.572436 mm")),
    Sketcher.Constraint("DistanceX", -1, 1, 65, 3, Q("37.326595 mm")),
    Sketcher.Constraint("DistanceX", -1, 1, 67, 3, Q("64.304393 mm")),
    Sketcher.Constraint("DistanceY", 67, 3, -1, 1, Q("60.141266 mm")),
    Sketcher.Constraint("DistanceX", -1, 1, 69, 3, Q("60.141266 mm")),
    Sketcher.Constraint("DistanceY", 69, 3, -1, 1, Q("64.304393 mm")),
    Sketcher.Constraint("DistanceY", 71, 3, -1, 1, Q("37.326595 mm")),
    Sketcher.Constraint("DistanceX", -1, 1, 73, 3, Q("77.068893 mm")),
    Sketcher.Constraint("DistanceY", 73, 3, -1, 1, Q("42.572436 mm")),
    Sketcher.Constraint("DistanceX", -1, 1, 76, 3, Q("0.000306 mm")),
    Sketcher.Constraint("DistanceY", 77, 3, -1, 1, Q("16.673193 mm")),
    Sketcher.Constraint("DistanceX", -1, 1, 0, 2, Q("74.669474 mm")),
    Sketcher.Constraint("DistanceY", -1, 1, 4, 2, Q("37.526118 mm")),
    Sketcher.Constraint("DistanceX", -1, 1, 5, 1, Q("72.680367 mm")),
    Sketcher.Constraint("DistanceX", -1, 1, 15, 1, Q("15.195713 mm")),
    Sketcher.Constraint("DistanceX", 19, 1, -1, 1, Q("8.622155 mm")),
    Sketcher.Constraint("DistanceX", 24, 2, -1, 1, Q("37.526118 mm")),
    Sketcher.Constraint("DistanceX", 25, 1, -1, 1, Q("48.743386 mm")),
    Sketcher.Constraint("DistanceX", 35, 1, -1, 1, Q("74.669474 mm")),
    Sketcher.Constraint("DistanceX", 39, 1, -1, 1, Q("75.710623 mm")),
    Sketcher.Constraint("DistanceY", 44, 2, -1, 1, Q("37.526118 mm")),
    Sketcher.Constraint("DistanceX", 45, 1, -1, 1, Q("72.680367 mm")),
    Sketcher.Constraint("DistanceX", 55, 1, -1, 1, Q("15.195713 mm")),
    Sketcher.Constraint("DistanceX", -1, 1, 59, 1, Q("8.622155 mm")),
    Sketcher.Constraint("DistanceX", -1, 1, 64, 2, Q("37.526118 mm")),
    Sketcher.Constraint("DistanceX", -1, 1, 65, 1, Q("48.743386 mm")),
    Sketcher.Constraint("DistanceX", -1, 1, 75, 1, Q("74.669474 mm")),
])
pad1 = doc.addObject("PartDesign::Pad", "Pad")
body.addObject(pad1)
pad1.Profile = sketch1
pad1.Length = Q("6 in")
pad1.Reversed = True

doc.recompute()
